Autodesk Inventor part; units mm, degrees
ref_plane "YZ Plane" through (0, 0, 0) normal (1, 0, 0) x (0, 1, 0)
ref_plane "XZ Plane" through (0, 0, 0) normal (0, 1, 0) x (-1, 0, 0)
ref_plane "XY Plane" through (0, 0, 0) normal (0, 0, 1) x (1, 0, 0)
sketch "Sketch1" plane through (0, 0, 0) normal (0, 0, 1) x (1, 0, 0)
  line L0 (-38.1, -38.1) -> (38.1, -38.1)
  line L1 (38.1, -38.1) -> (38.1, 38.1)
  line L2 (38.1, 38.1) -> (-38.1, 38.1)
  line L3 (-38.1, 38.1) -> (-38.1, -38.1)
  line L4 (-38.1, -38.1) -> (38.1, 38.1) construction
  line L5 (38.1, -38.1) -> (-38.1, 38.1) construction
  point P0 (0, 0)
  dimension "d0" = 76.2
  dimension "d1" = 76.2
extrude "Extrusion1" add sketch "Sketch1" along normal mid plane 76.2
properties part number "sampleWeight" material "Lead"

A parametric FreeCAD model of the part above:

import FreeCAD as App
import Part
import Sketcher
from FreeCAD import Vector
Q = App.Units.Quantity


def add_polygon(sketch, points):
    """Adds a closed chain of lines whose ends are joined by coincident constraints."""
    first, n = sketch.GeometryCount, len(points)
    for a, b in zip(points, points[1:] + points[:1]):
        sketch.addGeometry(Part.LineSegment(App.Vector(*a, 0), App.Vector(*b, 0)), False)
    for i in range(n):
        sketch.addConstraint(Sketcher.Constraint("Coincident", first + i, 2, first + (i + 1) % n, 1))

doc = App.newDocument("Part")
body = doc.addObject("PartDesign::Body", "Body")

# Sketch on XY plane
sketch1 = doc.addObject("Sketcher::SketchObject", "Sketch")
body.addObject(sketch1)
sketch1.AttachmentSupport = (doc.XY_Plane, [""])
sketch1.MapMode = "FlatFace"
add_polygon(sketch1, [(-38, 38), (-38, -38), (38, -38), (38, 38)])  # lines 0-3
sketch1.addConstraint([
    Sketcher.Constraint("Vertical", 0),
    Sketcher.Constraint("Horizontal", 1),
    Sketcher.Constraint("Vertical", 2),
    Sketcher.Constraint("Horizontal", 3),
    Sketcher.Constraint("Symmetric", 0, 2, 2, 2, -1, 1),
    Sketcher.Constraint("Equal", 3, 0),
    Sketcher.Constraint("DistanceX", 1, 1, 1, 2, Q("3 in")),
])
pad1 = doc.addObject("PartDesign::Pad", "Pad")
body.addObject(pad1)
pad1.Profile = sketch1
pad1.Length = Q("3 in")
pad1.Midplane = True

doc.recompute()
